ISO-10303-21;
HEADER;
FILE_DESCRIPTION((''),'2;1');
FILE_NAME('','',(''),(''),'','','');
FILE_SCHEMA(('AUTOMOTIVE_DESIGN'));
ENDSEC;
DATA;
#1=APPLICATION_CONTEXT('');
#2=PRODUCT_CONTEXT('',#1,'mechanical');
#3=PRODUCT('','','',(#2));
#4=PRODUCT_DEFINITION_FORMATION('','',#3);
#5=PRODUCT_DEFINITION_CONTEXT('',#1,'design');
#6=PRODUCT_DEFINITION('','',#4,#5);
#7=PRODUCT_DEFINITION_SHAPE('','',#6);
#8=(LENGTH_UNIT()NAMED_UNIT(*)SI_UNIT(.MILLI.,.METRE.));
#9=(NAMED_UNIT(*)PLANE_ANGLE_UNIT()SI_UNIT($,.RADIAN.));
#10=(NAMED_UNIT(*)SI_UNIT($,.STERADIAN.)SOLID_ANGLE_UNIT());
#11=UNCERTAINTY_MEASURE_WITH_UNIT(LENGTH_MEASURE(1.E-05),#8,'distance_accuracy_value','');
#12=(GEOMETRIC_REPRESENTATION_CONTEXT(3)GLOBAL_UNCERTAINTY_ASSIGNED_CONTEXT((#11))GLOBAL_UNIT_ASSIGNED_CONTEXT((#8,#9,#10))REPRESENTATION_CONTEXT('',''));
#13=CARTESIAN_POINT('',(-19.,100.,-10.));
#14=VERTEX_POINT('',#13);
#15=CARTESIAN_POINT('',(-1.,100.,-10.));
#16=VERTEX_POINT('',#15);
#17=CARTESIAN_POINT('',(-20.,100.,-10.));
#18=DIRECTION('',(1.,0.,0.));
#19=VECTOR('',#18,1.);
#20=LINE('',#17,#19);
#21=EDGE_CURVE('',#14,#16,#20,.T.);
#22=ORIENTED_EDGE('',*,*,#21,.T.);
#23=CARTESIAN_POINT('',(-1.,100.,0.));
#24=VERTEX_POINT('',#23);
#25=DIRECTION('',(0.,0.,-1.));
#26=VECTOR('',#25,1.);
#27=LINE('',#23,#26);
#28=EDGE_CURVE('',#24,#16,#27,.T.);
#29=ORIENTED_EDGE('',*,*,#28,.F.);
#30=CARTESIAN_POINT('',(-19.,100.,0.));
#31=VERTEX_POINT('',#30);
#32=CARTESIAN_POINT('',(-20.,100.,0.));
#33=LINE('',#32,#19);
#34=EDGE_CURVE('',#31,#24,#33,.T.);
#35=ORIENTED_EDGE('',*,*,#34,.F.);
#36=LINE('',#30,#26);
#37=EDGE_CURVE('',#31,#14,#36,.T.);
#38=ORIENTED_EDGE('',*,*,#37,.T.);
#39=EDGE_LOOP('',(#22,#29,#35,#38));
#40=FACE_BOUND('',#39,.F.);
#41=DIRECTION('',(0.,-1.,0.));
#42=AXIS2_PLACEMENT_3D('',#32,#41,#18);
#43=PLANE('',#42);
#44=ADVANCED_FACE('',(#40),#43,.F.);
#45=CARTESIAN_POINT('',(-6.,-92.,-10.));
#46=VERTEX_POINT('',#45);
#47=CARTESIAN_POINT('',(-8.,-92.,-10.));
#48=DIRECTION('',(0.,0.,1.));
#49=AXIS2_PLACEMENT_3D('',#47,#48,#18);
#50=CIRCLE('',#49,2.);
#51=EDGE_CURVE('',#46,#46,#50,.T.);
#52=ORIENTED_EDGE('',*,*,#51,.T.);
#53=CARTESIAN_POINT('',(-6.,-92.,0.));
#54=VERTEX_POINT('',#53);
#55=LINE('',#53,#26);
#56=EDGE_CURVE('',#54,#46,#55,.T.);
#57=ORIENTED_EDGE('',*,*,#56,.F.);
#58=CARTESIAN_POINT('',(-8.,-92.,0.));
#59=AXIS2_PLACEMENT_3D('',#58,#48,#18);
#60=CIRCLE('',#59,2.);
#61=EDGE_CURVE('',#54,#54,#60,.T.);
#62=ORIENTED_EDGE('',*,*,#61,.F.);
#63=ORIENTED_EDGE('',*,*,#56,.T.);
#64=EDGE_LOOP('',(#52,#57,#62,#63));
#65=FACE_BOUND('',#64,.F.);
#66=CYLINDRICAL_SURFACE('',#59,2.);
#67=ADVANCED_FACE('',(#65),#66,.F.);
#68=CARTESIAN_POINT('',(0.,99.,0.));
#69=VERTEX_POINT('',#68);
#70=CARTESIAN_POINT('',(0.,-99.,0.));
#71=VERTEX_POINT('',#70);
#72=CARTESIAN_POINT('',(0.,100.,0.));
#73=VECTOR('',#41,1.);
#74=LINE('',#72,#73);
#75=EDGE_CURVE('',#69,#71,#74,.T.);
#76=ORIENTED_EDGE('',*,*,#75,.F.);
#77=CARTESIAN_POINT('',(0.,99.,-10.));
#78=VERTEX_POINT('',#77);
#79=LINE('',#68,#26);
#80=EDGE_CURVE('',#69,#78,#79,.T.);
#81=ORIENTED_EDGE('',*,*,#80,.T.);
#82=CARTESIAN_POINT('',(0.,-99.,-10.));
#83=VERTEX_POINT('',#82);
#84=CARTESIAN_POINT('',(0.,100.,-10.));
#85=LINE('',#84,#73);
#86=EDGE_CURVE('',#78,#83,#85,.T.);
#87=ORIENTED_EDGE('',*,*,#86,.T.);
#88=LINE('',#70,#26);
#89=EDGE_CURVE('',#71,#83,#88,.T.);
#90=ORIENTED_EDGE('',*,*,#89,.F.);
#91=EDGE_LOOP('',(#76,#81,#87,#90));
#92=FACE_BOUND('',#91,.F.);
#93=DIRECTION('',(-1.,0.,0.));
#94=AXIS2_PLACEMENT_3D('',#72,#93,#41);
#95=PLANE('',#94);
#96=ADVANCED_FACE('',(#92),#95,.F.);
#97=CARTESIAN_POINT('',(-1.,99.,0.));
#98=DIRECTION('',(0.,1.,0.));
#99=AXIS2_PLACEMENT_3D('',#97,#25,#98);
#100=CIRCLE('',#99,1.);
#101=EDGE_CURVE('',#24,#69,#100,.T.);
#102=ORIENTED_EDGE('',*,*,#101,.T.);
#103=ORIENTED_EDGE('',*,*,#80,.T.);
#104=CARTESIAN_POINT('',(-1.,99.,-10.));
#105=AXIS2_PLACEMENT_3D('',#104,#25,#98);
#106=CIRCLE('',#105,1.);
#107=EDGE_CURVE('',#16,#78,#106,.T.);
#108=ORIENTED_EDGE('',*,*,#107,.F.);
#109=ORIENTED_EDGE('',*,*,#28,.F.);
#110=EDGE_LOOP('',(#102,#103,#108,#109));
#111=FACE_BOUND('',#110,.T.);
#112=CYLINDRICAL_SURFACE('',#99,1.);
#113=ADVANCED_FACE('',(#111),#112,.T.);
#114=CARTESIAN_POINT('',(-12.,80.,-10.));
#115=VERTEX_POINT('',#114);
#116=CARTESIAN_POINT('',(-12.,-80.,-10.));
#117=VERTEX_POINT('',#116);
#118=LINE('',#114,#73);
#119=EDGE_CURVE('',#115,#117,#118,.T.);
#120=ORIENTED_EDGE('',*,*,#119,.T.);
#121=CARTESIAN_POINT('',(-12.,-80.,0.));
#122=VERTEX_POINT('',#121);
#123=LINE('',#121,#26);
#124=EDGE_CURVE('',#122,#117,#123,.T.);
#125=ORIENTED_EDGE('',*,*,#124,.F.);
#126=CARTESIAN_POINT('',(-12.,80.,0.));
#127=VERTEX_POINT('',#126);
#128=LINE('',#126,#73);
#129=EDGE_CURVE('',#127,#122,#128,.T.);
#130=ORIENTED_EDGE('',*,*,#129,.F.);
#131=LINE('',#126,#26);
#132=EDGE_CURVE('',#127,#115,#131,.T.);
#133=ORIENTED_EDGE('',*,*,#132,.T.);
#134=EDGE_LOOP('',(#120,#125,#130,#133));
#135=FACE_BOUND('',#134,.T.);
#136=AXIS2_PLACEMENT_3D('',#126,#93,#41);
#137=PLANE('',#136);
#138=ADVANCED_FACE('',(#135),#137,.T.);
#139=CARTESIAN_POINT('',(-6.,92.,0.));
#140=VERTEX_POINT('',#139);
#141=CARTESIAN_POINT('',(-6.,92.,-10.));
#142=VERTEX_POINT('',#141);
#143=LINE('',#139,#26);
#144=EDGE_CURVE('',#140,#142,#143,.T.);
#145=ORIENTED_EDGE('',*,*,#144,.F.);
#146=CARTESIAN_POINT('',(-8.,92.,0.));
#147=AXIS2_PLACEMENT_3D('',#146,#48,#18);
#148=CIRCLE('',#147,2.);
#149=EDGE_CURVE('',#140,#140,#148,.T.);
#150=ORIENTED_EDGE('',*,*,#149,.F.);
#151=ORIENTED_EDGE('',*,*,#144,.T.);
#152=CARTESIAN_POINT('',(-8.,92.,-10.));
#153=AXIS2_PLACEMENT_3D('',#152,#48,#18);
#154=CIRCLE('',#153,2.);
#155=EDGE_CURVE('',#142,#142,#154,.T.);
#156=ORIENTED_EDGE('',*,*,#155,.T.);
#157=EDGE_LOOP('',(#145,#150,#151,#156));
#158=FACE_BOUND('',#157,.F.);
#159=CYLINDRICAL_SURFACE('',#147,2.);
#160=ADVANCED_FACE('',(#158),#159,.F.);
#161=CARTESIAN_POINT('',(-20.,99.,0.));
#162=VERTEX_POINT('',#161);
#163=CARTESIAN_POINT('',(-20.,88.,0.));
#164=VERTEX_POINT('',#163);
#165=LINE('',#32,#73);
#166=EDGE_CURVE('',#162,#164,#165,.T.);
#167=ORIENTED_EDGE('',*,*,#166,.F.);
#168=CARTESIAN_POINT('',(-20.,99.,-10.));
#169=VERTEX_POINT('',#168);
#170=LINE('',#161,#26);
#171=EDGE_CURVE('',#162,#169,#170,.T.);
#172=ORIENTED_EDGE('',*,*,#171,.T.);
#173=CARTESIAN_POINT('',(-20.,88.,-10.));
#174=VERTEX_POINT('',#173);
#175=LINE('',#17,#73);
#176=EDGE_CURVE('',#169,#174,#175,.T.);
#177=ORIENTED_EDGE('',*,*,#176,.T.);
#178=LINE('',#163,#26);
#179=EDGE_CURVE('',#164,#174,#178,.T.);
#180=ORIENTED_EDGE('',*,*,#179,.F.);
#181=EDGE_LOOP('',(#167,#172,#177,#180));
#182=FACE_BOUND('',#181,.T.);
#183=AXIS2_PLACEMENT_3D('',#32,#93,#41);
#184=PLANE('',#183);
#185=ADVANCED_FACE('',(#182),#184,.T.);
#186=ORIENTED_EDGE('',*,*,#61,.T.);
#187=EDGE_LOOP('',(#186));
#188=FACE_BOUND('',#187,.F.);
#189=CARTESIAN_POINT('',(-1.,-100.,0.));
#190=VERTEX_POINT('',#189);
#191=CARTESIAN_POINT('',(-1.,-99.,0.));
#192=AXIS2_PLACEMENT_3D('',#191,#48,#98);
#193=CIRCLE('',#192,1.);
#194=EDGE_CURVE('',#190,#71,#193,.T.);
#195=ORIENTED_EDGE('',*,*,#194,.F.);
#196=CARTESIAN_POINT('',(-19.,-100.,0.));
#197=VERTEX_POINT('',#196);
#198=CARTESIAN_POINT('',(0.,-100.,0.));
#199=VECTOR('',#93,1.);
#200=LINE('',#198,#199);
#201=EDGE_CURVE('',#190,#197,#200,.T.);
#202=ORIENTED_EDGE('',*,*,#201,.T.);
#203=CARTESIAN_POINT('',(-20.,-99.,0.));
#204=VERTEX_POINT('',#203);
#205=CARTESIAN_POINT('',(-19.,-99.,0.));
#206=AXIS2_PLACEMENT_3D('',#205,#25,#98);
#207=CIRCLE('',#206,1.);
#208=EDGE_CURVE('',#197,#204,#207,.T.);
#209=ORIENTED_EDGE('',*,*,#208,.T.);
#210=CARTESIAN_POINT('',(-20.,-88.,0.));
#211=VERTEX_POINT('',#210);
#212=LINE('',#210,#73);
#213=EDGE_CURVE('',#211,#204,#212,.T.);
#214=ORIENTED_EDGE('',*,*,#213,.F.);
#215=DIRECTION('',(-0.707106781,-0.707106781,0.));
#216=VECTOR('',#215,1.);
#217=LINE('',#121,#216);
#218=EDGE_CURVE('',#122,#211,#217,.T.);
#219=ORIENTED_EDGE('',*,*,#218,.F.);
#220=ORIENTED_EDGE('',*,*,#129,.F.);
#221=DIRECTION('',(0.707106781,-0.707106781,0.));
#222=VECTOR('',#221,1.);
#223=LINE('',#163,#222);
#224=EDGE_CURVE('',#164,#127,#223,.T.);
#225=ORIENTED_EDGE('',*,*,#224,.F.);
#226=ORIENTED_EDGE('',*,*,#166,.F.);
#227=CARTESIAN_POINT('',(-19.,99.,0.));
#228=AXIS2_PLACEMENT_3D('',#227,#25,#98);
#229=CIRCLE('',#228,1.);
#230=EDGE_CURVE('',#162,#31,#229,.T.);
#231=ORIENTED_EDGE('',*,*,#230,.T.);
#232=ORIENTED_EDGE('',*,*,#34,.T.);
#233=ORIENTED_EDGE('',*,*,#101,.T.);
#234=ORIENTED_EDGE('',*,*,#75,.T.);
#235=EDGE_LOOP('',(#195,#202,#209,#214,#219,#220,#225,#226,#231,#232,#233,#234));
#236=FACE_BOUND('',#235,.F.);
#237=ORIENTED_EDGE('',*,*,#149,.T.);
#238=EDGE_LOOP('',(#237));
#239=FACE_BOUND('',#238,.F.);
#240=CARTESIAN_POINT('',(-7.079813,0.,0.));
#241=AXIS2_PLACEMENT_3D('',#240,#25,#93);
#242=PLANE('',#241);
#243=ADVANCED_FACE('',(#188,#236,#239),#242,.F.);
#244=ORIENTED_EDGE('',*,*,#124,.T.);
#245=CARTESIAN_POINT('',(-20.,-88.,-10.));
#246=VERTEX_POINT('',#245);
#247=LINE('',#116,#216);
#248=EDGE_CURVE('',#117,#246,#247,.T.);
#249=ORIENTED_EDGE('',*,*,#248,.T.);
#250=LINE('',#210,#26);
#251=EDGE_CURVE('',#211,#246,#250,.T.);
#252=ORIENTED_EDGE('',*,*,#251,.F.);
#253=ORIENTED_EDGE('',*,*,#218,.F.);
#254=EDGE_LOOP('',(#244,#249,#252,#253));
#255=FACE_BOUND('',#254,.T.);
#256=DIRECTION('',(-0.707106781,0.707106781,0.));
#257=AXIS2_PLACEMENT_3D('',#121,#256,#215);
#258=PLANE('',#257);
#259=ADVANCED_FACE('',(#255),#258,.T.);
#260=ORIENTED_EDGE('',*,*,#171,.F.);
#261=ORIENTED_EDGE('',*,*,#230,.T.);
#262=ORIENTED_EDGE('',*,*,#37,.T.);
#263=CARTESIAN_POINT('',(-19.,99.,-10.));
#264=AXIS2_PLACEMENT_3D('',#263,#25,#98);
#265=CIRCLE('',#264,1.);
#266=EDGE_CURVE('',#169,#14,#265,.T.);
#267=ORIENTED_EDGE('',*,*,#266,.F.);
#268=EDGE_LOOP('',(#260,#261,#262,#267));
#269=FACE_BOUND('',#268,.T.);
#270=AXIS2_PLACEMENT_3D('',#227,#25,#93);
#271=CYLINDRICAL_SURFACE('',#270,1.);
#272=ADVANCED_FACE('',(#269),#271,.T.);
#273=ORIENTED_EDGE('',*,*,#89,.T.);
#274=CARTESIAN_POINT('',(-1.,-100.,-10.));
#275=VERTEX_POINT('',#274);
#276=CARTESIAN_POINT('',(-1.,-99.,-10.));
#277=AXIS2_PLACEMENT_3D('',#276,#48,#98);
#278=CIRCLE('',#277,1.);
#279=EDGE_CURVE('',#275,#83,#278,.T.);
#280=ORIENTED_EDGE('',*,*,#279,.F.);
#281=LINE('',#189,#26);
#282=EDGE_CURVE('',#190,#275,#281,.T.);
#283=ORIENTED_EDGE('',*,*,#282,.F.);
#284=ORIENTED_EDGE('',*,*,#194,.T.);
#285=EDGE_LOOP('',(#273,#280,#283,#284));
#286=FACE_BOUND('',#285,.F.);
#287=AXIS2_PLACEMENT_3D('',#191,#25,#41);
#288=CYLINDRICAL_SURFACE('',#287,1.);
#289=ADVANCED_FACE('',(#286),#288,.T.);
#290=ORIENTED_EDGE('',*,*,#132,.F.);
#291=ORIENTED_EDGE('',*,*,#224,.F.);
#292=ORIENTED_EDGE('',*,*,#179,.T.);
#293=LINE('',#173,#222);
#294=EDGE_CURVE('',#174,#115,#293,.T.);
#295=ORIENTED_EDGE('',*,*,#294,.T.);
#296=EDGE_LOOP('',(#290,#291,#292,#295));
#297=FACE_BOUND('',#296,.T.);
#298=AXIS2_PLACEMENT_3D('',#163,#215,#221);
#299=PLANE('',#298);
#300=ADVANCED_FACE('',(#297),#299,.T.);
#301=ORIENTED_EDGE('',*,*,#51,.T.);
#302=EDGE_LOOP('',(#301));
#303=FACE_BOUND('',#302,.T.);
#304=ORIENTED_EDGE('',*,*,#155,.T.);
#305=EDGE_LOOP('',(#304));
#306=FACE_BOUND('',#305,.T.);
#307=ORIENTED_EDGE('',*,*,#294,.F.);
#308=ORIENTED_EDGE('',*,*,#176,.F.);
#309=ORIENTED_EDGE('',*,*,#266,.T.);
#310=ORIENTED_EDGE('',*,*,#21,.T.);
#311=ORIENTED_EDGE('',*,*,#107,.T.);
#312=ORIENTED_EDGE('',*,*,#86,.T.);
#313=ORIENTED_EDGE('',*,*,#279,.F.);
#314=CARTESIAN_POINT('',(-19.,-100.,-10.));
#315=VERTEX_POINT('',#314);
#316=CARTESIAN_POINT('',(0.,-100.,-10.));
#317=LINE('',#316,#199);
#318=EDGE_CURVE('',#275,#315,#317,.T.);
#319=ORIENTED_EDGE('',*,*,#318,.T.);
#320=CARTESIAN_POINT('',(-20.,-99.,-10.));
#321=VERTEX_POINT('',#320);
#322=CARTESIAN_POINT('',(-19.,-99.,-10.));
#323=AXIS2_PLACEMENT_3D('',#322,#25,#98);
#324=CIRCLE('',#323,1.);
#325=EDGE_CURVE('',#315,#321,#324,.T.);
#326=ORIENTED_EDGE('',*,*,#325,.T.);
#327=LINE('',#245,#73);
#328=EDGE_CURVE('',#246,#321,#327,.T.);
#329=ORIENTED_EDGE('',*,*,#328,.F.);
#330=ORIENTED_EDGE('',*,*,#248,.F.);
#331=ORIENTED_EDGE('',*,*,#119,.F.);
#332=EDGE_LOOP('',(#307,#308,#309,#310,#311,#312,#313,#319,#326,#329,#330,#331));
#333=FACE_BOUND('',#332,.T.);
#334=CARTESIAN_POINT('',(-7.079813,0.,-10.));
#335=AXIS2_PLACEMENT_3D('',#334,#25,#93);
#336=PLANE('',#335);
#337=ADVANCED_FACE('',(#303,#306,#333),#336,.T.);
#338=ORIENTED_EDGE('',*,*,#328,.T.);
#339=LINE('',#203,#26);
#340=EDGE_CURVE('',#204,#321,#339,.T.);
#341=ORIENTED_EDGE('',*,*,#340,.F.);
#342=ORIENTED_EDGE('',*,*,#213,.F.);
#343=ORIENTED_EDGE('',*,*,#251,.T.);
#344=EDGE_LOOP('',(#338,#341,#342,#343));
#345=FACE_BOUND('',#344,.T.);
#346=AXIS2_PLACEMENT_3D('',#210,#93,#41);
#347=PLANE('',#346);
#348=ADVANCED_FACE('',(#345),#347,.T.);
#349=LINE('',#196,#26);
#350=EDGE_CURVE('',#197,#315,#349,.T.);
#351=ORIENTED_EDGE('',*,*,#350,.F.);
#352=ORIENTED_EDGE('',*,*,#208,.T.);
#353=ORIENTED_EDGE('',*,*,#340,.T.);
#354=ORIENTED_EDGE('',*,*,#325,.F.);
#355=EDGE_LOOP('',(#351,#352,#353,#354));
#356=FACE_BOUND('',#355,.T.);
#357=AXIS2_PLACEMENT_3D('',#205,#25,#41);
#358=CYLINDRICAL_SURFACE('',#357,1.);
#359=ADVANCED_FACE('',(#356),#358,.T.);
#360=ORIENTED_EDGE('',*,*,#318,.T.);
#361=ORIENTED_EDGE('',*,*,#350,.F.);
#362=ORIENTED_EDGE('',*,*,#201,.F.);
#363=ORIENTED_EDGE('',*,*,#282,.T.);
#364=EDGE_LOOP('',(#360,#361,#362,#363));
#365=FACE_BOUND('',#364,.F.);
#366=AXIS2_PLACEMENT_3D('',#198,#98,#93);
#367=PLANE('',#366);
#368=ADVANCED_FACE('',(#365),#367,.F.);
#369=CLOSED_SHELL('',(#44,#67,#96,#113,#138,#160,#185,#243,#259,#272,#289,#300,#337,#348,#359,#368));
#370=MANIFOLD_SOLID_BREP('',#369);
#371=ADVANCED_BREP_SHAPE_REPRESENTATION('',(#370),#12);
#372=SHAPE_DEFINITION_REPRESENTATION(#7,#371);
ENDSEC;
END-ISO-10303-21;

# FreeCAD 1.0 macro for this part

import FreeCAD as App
import Part
import Sketcher
Q = App.Units.Quantity


def edges_at(feature, points):
    """Names of the edges that pass closest to the given points."""
    edges = feature.Shape.Edges
    near = lambda p: min(range(len(edges)), key=lambda i: edges[i].distToShape(Part.Vertex(*p))[0])
    return sorted({f"Edge{near(p) + 1}" for p in points})


def add_polygon(sketch, points):
    """Adds a closed chain of lines whose ends are joined by coincident constraints."""
    first, n = sketch.GeometryCount, len(points)
    for a, b in zip(points, points[1:] + points[:1]):
        sketch.addGeometry(Part.LineSegment(App.Vector(*a, 0), App.Vector(*b, 0)), False)
    for i in range(n):
        sketch.addConstraint(Sketcher.Constraint("Coincident", first + i, 2, first + (i + 1) % n, 1))

doc = App.newDocument("Part")
body = doc.addObject("PartDesign::Body", "Body")

# Sketch on XY plane
sketch1 = body.newObject("Sketcher::SketchObject", "Sketch")
sketch1.AttachmentSupport = (doc.getObject("XY_Plane"), [""])
sketch1.MapMode = "FlatFace"
add_polygon(sketch1, [(-20, -100), (0, -100), (0, 100), (-20, 100), (-20, 88), (-12, 80), (-12, -80), (-20, -88)])  # lines 0-7
sketch1.addGeometry(Part.Circle(App.Vector(-8, -92, 0), App.Vector(0, 0, 1), 2), False)  # 8
sketch1.addGeometry(Part.Circle(App.Vector(-8, 92, 0), App.Vector(0, 0, 1), 2), False)  # 9
sketch1.addConstraint([
    Sketcher.Constraint("Horizontal", 0),
    Sketcher.Constraint("Vertical", 1),
    Sketcher.Constraint("Horizontal", 2),
    Sketcher.Constraint("Vertical", 3),
    Sketcher.Constraint("Vertical", 5),
    Sketcher.Constraint("Vertical", 7),
    Sketcher.Constraint("Equal", 8, 9),
    Sketcher.Constraint("Symmetric", 0, 2, 1, 2, -1, 1),
    Sketcher.Constraint("Symmetric", 8, 3, 9, 3, -1),
    Sketcher.Constraint("Symmetric", 3, 2, 6, 2, -1),
    Sketcher.Constraint("Perpendicular", 4, 6),
    Sketcher.Constraint("Equal", 4, 6),
    Sketcher.Constraint("DistanceX", 0, 1, 0, 2, Q("20 mm")),
    Sketcher.Constraint("Diameter", 8, Q("4 mm")),
    Sketcher.Constraint("DistanceX", 8, 3, -1, 1, Q("8 mm")),
    Sketcher.Constraint("DistanceY", 0, 2, 8, 3, Q("8 mm")),
    Sketcher.Constraint("DistanceX", 3, 2, 4, 2, Q("8 mm")),
    Sketcher.Constraint("DistanceY", 4, 2, 2, 2, Q("20 mm")),
    Sketcher.Constraint("DistanceY", 1, 1, 1, 2, Q("200 mm")),
])
pad1 = body.newObject("PartDesign::Pad", "Pad")
pad1.Profile = sketch1
pad1.Length = 10
pad1.Reversed = True
doc.recompute()

fillet = body.newObject("PartDesign::Fillet", "Fillet")
fillet.Base = (pad1, edges_at(pad1, [
    (0, -100, -5),
    (-20, -100, -5),
    (0, 100, -5),
    (-20, 100, -5),
]))
fillet.Radius = 1

doc.recompute()
